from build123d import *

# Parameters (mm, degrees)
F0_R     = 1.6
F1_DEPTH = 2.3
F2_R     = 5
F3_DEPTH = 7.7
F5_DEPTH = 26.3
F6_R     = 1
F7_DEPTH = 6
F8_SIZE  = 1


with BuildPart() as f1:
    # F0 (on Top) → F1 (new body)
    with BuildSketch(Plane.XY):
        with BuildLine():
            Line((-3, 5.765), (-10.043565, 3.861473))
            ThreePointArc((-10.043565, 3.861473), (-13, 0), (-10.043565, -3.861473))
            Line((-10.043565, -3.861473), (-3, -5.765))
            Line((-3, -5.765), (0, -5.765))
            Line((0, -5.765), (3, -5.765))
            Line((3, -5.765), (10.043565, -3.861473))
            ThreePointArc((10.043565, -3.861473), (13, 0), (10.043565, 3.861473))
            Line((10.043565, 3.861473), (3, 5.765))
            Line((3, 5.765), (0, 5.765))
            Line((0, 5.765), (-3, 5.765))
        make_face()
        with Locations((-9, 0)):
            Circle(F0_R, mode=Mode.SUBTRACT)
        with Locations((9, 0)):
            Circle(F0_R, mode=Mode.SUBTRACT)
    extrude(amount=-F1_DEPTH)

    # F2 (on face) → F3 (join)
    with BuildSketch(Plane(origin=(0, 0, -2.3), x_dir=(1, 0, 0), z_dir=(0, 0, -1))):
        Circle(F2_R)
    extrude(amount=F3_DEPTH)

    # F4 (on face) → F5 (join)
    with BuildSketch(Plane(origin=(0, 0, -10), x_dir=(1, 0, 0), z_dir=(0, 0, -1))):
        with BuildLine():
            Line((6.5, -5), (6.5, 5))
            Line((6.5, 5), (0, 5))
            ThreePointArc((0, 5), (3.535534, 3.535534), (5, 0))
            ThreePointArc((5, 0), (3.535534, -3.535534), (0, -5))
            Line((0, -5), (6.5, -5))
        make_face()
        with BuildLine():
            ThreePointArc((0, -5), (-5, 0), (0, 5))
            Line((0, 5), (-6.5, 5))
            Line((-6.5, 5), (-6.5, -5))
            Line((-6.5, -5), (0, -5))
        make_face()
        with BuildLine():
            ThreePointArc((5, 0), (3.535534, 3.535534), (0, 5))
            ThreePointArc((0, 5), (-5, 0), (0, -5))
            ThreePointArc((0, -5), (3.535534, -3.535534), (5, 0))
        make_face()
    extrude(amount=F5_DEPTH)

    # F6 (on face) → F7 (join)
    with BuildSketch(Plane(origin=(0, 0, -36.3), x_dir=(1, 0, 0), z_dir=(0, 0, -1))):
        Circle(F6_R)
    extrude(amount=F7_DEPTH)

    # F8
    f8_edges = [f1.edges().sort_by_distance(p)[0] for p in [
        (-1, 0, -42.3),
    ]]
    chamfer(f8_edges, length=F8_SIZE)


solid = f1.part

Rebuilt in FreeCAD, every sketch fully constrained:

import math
import FreeCAD as App
import Part
import Sketcher
from FreeCAD import Vector
Q = App.Units.Quantity


def edges_at(feature, points):
    """Names of the edges that pass closest to the given points."""
    edges = feature.Shape.Edges
    near = lambda p: min(range(len(edges)), key=lambda i: edges[i].distToShape(Part.Vertex(*p))[0])
    return sorted({f"Edge{near(p) + 1}" for p in points})


def add_polygon(sketch, points):
    """Adds a closed chain of lines whose ends are joined by coincident constraints."""
    first, n = sketch.GeometryCount, len(points)
    for a, b in zip(points, points[1:] + points[:1]):
        sketch.addGeometry(Part.LineSegment(App.Vector(*a, 0), App.Vector(*b, 0)), False)
    for i in range(n):
        sketch.addConstraint(Sketcher.Constraint("Coincident", first + i, 2, first + (i + 1) % n, 1))

doc = App.newDocument("Part")
body = doc.addObject("PartDesign::Body", "Body")

# Sketch on XY plane
sketch1 = doc.addObject("Sketcher::SketchObject", "Sketch")
body.addObject(sketch1)
sketch1.AttachmentSupport = (doc.XY_Plane, [""])
sketch1.MapMode = "FlatFace"
sketch1.addGeometry([
    Part.LineSegment(Vector(-3, 5.8, 0), Vector(-10, 3.9, 0)),  # 0
    Part.ArcOfCircle(Part.Circle(Vector(-9, 0, 0), Vector(0, 0, 1), 4), math.radians(105), math.radians(255)),  # 1
    Part.LineSegment(Vector(-10, -3.9, 0), Vector(-3, -5.8, 0)),  # 2
    Part.LineSegment(Vector(-3, -5.8, 0), Vector(3, -5.8, 0)),  # 3
    Part.LineSegment(Vector(3, -5.8, 0), Vector(10, -3.9, 0)),  # 4
    Part.ArcOfCircle(Part.Circle(Vector(9, 0, 0), Vector(0, 0, 1), 4), math.radians(-75), math.radians(75)),  # 5
    Part.LineSegment(Vector(10, 3.9, 0), Vector(3, 5.8, 0)),  # 6
    Part.LineSegment(Vector(3, 5.8, 0), Vector(-3, 5.8, 0)),  # 7
    Part.Circle(Vector(-9, 0, 0), Vector(0, 0, 1), 1.6),  # 8
    Part.Circle(Vector(9, 0, 0), Vector(0, 0, 1), 1.6),  # 9
], False)
sketch1.addConstraint([
    Sketcher.Constraint("Tangent", 0, 2, 1, 1),
    Sketcher.Constraint("Tangent", 1, 2, 2, 1),
    Sketcher.Constraint("Coincident", 2, 2, 3, 1),
    Sketcher.Constraint("Coincident", 3, 2, 4, 1),
    Sketcher.Constraint("Tangent", 4, 2, 5, 1),
    Sketcher.Constraint("Tangent", 5, 2, 6, 1),
    Sketcher.Constraint("Coincident", 6, 2, 7, 1),
    Sketcher.Constraint("Coincident", 7, 2, 0, 1),
    Sketcher.Constraint("Horizontal", 3),
    Sketcher.Constraint("Horizontal", 7),
    Sketcher.Constraint("Coincident", 8, 3, 1, 3),
    Sketcher.Constraint("Coincident", 9, 3, 5, 3),
    Sketcher.Constraint("Equal", 1, 5),
    Sketcher.Constraint("Equal", 8, 9),
    Sketcher.Constraint("Symmetric", 1, 3, 5, 3, -1, 1),
    Sketcher.Constraint("Symmetric", 2, 2, 6, 2, -1, 1),
    Sketcher.Constraint("Symmetric", 1, 2, 4, 2, -2),
    Sketcher.Constraint("Parallel", 0, 4),
    Sketcher.Constraint("Radius", 1, Q("4 mm")),
    Sketcher.Constraint("Diameter", 8, Q("3.2 mm")),
    Sketcher.Constraint("DistanceX", 3, 1, 3, 2, Q("6 mm")),
    Sketcher.Constraint("DistanceX", 1, 3, -1, 1, Q("9 mm")),
    Sketcher.Constraint("DistanceY", 3, 2, 6, 2, Q("11.53 mm")),
])
pad1 = doc.addObject("PartDesign::Pad", "Pad")
body.addObject(pad1)
pad1.Profile = sketch1
pad1.Length = 2.3
pad1.Reversed = True

# Sketch on XY plane
sketch2 = doc.addObject("Sketcher::SketchObject", "Sketch001")
body.addObject(sketch2)
sketch2.AttachmentSupport = (doc.XY_Plane, [""])
sketch2.MapMode = "FlatFace"
sketch2.AttachmentOffset = App.Placement(Vector(0, 0, -2.3), App.Rotation())
sketch2.addGeometry(Part.Circle(Vector(0, 0, 0), Vector(0, 0, 1), 5), False)
sketch2.addConstraint([
    Sketcher.Constraint("Coincident", 0, 3, -1, 1),
    Sketcher.Constraint("Diameter", 0, Q("10 mm")),
])
pad2 = doc.addObject("PartDesign::Pad", "Pad001")
body.addObject(pad2)
pad2.Profile = sketch2
pad2.Length = 7.7
pad2.Reversed = True

# Sketch on XY plane
sketch3 = doc.addObject("Sketcher::SketchObject", "Sketch002")
body.addObject(sketch3)
sketch3.AttachmentSupport = (doc.XY_Plane, [""])
sketch3.MapMode = "FlatFace"
sketch3.AttachmentOffset = App.Placement(Vector(0, 0, -10), App.Rotation())
add_polygon(sketch3, [(6, 5), (6, -5), (-6, -5), (-6, 5)])  # lines 0-3
sketch3.addConstraint([
    Sketcher.Constraint("Vertical", 0),
    Sketcher.Constraint("Horizontal", 1),
    Sketcher.Constraint("Vertical", 2),
    Sketcher.Constraint("Horizontal", 3),
    Sketcher.Constraint("Symmetric", 0, 2, 2, 2, -1, 1),
    Sketcher.Constraint("DistanceX", 1, 2, 1, 1, Q("13 mm")),
    Sketcher.Constraint("DistanceY", 0, 2, 0, 1, Q("10 mm")),
])
pad3 = doc.addObject("PartDesign::Pad", "Pad002")
body.addObject(pad3)
pad3.Profile = sketch3
pad3.Length = 26.3
pad3.Reversed = True

# Sketch on XY plane
sketch4 = doc.addObject("Sketcher::SketchObject", "Sketch003")
body.addObject(sketch4)
sketch4.AttachmentSupport = (doc.XY_Plane, [""])
sketch4.MapMode = "FlatFace"
sketch4.AttachmentOffset = App.Placement(Vector(0, 0, -36.3), App.Rotation())
sketch4.addGeometry(Part.Circle(Vector(0, 0, 0), Vector(0, 0, 1), 1), False)
sketch4.addConstraint([
    Sketcher.Constraint("Coincident", 0, 3, -1, 1),
    Sketcher.Constraint("Diameter", 0, Q("2 mm")),
])
pad4 = doc.addObject("PartDesign::Pad", "Pad003")
body.addObject(pad4)
pad4.Profile = sketch4
pad4.Length = 6
pad4.Reversed = True
doc.recompute()

chamfer = doc.addObject("PartDesign::Chamfer", "Chamfer")
body.addObject(chamfer)
chamfer.Base = (pad4, edges_at(pad4, [(-1, 0, -42.3)]))
chamfer.Size = 1

doc.recompute()
